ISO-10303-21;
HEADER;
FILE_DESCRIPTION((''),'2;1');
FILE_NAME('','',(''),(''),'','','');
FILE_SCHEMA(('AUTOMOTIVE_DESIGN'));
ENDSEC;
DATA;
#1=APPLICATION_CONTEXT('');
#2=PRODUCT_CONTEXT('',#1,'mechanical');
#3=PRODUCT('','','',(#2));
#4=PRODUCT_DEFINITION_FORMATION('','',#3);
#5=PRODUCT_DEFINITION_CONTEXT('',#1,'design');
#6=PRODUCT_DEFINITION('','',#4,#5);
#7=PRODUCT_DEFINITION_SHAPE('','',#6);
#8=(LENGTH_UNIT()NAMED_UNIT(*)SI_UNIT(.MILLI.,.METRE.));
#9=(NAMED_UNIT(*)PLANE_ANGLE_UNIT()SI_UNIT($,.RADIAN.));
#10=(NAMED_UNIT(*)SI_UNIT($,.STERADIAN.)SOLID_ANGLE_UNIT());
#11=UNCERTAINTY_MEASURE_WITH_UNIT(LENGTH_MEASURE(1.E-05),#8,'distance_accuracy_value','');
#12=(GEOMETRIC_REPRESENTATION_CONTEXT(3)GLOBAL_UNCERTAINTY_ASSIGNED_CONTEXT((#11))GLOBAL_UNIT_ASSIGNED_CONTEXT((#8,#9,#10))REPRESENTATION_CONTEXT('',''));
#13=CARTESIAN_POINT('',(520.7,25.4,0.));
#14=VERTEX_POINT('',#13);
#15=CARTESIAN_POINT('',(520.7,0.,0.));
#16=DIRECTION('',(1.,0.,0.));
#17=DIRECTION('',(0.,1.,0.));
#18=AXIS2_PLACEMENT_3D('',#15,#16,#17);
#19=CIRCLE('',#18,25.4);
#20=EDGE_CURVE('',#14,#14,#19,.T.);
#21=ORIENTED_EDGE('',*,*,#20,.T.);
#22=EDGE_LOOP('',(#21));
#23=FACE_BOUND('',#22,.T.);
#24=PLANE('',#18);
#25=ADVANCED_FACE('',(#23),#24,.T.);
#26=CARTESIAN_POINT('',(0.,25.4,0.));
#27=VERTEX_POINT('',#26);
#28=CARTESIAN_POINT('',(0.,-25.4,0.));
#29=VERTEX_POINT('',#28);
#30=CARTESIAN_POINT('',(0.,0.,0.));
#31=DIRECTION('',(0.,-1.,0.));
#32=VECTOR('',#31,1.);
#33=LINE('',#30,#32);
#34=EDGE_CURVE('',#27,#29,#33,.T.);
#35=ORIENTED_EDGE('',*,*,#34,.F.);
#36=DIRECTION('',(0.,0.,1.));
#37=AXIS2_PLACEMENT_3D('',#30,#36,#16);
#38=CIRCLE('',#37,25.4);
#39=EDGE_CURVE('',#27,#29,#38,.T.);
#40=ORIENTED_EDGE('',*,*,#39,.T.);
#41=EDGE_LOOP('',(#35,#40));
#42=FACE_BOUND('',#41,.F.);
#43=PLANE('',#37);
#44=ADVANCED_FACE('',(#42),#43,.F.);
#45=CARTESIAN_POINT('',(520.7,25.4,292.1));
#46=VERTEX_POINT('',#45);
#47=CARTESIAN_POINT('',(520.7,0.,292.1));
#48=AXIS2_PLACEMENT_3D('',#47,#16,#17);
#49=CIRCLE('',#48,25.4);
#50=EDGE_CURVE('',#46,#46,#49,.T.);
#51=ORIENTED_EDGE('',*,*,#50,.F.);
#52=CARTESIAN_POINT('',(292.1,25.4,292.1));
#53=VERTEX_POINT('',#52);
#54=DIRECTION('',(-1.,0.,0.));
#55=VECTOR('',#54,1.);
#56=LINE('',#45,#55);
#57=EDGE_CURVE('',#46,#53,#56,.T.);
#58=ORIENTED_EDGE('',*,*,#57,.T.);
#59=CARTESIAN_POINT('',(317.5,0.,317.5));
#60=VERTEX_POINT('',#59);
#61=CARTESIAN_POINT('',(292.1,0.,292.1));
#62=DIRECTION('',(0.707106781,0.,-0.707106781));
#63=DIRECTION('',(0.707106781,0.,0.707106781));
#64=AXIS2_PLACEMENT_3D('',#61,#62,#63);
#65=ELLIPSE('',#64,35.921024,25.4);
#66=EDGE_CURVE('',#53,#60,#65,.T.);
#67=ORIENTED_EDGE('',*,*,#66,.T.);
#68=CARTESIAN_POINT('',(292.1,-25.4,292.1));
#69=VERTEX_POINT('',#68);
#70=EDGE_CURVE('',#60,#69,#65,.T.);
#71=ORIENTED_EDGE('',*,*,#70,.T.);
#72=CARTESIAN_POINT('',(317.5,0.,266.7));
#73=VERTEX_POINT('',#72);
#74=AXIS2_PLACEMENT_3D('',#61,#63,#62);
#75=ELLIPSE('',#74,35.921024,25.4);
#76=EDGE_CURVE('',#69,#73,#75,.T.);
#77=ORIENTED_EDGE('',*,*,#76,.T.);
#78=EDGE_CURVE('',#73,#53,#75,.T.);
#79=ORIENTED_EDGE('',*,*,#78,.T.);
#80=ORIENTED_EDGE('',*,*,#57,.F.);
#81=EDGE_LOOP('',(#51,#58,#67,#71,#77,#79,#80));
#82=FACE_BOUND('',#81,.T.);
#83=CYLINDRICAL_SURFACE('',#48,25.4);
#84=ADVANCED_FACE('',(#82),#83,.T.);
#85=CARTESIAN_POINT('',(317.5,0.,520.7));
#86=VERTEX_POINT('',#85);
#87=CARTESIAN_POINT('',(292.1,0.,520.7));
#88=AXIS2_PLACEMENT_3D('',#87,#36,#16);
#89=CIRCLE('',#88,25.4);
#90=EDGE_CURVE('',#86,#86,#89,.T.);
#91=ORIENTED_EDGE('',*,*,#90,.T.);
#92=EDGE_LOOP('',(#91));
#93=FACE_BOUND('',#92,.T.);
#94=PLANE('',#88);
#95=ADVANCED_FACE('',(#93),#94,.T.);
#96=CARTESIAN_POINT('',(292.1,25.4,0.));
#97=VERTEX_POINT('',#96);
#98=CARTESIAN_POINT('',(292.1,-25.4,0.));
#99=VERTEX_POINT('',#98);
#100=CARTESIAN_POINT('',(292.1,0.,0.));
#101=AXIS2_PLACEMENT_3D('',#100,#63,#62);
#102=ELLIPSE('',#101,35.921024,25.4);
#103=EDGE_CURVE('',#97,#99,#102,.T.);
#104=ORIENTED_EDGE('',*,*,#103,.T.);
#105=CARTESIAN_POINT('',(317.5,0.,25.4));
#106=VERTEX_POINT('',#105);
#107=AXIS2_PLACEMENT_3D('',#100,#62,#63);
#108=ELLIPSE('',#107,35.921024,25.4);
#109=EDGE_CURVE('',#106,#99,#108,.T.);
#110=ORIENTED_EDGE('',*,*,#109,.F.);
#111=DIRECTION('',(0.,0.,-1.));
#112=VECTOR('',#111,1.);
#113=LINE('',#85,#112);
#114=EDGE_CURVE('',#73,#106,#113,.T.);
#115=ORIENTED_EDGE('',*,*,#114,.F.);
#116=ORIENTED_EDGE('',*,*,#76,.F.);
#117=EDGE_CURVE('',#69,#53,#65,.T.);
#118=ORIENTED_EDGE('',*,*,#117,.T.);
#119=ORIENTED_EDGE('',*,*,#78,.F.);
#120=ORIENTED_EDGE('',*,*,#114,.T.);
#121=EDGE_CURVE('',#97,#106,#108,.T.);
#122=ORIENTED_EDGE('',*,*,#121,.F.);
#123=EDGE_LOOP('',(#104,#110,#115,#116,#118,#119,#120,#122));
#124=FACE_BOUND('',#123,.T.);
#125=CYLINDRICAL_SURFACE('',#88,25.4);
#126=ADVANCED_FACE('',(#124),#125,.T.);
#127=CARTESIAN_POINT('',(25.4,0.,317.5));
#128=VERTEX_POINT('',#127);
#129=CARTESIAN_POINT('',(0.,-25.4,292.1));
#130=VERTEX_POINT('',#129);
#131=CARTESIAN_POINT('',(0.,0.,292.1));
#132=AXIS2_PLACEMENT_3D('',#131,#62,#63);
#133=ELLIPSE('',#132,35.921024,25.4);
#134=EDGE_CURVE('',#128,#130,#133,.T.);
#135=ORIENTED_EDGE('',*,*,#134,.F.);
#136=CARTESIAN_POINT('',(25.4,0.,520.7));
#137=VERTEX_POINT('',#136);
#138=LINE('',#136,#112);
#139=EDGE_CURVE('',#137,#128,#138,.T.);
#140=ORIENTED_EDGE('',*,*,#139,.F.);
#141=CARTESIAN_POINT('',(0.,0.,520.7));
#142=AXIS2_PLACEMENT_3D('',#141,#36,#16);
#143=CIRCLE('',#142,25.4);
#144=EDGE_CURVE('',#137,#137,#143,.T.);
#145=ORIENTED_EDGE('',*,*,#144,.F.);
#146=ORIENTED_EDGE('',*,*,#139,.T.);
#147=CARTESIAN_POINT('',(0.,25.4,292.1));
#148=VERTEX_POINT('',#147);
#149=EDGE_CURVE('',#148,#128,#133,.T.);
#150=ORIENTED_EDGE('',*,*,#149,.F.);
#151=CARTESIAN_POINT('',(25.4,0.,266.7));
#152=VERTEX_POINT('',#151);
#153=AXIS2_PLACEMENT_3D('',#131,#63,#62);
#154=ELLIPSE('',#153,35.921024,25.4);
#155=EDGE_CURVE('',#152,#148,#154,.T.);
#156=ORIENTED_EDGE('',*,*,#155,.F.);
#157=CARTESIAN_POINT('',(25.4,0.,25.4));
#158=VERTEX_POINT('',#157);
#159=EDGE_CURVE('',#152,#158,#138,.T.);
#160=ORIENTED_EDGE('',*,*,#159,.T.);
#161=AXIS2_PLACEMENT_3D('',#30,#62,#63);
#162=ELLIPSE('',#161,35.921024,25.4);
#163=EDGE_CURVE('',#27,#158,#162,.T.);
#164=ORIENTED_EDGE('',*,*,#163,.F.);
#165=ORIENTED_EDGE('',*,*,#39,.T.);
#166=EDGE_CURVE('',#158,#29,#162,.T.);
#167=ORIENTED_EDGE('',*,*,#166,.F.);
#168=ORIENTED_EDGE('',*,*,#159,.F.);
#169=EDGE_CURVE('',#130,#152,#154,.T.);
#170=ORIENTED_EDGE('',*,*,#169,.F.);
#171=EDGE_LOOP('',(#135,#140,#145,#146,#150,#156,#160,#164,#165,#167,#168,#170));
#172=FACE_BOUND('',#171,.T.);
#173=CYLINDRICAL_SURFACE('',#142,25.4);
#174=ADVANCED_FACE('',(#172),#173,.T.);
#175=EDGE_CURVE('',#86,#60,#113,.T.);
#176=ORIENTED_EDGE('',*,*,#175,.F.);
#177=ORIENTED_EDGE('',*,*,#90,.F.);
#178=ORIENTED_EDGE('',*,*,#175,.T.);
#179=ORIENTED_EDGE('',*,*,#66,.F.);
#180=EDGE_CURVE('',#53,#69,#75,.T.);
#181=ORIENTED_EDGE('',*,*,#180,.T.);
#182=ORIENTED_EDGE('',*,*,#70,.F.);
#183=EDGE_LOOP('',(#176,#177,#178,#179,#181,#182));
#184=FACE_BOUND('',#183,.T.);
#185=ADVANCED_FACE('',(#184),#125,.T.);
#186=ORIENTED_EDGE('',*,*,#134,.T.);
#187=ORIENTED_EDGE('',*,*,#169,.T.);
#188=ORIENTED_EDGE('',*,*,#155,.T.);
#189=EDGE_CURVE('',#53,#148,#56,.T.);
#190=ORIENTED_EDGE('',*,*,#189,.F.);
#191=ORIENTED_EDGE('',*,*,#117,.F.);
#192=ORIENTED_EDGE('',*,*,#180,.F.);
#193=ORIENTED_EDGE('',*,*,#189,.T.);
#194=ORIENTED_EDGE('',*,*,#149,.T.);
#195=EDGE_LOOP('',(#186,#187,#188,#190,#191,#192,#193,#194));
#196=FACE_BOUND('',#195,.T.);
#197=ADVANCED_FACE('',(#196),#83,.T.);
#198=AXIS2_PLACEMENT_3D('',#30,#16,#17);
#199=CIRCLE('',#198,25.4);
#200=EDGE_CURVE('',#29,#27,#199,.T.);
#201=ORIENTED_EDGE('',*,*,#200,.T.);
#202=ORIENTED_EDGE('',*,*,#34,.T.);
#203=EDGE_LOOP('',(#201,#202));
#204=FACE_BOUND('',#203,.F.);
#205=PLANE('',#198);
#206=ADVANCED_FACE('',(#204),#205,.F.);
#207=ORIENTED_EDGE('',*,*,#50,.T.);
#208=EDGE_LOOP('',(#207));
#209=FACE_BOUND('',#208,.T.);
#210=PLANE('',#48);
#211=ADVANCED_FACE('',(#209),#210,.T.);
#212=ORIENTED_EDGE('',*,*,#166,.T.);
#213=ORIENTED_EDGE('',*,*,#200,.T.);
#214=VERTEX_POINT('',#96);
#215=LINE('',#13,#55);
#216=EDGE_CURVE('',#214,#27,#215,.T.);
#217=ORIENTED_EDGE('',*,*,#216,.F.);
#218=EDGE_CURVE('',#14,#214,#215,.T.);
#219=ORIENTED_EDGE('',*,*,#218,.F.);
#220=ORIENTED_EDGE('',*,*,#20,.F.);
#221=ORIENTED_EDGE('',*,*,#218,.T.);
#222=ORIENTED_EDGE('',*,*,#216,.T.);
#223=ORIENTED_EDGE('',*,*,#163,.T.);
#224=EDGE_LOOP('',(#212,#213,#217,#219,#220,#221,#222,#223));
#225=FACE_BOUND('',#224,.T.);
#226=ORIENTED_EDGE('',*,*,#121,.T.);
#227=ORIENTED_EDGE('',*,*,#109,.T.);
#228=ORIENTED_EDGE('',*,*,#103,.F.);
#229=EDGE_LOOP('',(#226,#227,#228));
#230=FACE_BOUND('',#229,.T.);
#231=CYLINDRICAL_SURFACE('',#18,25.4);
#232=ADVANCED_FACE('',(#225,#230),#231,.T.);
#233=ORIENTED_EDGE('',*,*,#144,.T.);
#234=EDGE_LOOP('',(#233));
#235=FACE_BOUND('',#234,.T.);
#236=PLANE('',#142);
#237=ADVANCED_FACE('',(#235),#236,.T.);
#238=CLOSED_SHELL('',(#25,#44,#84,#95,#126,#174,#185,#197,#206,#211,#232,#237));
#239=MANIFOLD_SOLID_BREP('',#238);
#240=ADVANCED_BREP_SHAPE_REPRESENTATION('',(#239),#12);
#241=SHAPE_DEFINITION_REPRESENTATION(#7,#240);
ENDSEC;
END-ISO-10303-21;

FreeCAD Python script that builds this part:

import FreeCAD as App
import Part
import Sketcher
Q = App.Units.Quantity

doc = App.newDocument("Part")
body = doc.addObject("PartDesign::Body", "Body")

# Sketch on YZ plane
sketch1 = body.newObject("Sketcher::SketchObject", "Sketch")
sketch1.AttachmentSupport = (doc.getObject("YZ_Plane"), [""])
sketch1.MapMode = "FlatFace"
sketch1.AttachmentOffset = App.Placement(App.Vector(0, 0, 20.5 * 25.4), App.Rotation())
sketch1.addGeometry(Part.Circle(App.Vector(0, 0, 0), App.Vector(0, 0, 1), 25), False)
sketch1.addConstraint([
    Sketcher.Constraint("Coincident", 0, 3, -1, 1),
    Sketcher.Constraint("Diameter", 0, Q("2 in")),
])
pad1 = body.newObject("PartDesign::Pad", "Pad")
pad1.Profile = sketch1
pad1.Length = Q("20.5 in")
pad1.Reversed = True
body2 = doc.addObject("PartDesign::Body", "Body001")

# Sketch on YZ plane
sketch2 = body2.newObject("Sketcher::SketchObject", "Sketch001")
sketch2.AttachmentSupport = (doc.getObject("YZ_Plane001"), [""])
sketch2.MapMode = "FlatFace"
sketch2.AttachmentOffset = App.Placement(App.Vector(0, 0, 20.5 * 25.4), App.Rotation())
sketch2.addGeometry(Part.Circle(App.Vector(0, 292, 0), App.Vector(0, 0, 1), 25), False)
sketch2.addConstraint([
    Sketcher.Constraint("PointOnObject", 0, 3, -2),
    Sketcher.Constraint("Diameter", 0, Q("2 in")),
    Sketcher.Constraint("DistanceY", -1, 1, 0, 3, Q("11.5 in")),
])
pad2 = body2.newObject("PartDesign::Pad", "Pad001")
pad2.Profile = sketch2
pad2.Length = Q("20.5 in")
pad2.Reversed = True
body.AllowCompound = True
doc.recompute()

boolean = body.newObject("PartDesign::Boolean", "Boolean")
boolean.Type = "Fuse"
boolean.addObjects([body2])

# Sketch on XY plane
sketch3 = body.newObject("Sketcher::SketchObject", "Sketch002")
sketch3.AttachmentSupport = (doc.getObject("XY_Plane"), [""])
sketch3.MapMode = "FlatFace"
sketch3.AttachmentOffset = App.Placement(App.Vector(0, 0, 20.5 * 25.4), App.Rotation())
sketch3.addGeometry([
    Part.Circle(App.Vector(0, 0, 0), App.Vector(0, 0, 1), 25),
    Part.Circle(App.Vector(292, 0, 0), App.Vector(0, 0, 1), 25),
], False)
sketch3.addConstraint([
    Sketcher.Constraint("Coincident", 0, 3, -1, 1),
    Sketcher.Constraint("Equal", 0, 1),
    Sketcher.Constraint("PointOnObject", 1, 3, -1),
    Sketcher.Constraint("Diameter", 0, Q("2 in")),
    Sketcher.Constraint("DistanceX", -1, 1, 1, 3, Q("11.5 in")),
])
pad3 = body.newObject("PartDesign::Pad", "Pad002")
pad3.Profile = sketch3
pad3.Length = Q("20.5 in")
pad3.Reversed = True

doc.recompute()
